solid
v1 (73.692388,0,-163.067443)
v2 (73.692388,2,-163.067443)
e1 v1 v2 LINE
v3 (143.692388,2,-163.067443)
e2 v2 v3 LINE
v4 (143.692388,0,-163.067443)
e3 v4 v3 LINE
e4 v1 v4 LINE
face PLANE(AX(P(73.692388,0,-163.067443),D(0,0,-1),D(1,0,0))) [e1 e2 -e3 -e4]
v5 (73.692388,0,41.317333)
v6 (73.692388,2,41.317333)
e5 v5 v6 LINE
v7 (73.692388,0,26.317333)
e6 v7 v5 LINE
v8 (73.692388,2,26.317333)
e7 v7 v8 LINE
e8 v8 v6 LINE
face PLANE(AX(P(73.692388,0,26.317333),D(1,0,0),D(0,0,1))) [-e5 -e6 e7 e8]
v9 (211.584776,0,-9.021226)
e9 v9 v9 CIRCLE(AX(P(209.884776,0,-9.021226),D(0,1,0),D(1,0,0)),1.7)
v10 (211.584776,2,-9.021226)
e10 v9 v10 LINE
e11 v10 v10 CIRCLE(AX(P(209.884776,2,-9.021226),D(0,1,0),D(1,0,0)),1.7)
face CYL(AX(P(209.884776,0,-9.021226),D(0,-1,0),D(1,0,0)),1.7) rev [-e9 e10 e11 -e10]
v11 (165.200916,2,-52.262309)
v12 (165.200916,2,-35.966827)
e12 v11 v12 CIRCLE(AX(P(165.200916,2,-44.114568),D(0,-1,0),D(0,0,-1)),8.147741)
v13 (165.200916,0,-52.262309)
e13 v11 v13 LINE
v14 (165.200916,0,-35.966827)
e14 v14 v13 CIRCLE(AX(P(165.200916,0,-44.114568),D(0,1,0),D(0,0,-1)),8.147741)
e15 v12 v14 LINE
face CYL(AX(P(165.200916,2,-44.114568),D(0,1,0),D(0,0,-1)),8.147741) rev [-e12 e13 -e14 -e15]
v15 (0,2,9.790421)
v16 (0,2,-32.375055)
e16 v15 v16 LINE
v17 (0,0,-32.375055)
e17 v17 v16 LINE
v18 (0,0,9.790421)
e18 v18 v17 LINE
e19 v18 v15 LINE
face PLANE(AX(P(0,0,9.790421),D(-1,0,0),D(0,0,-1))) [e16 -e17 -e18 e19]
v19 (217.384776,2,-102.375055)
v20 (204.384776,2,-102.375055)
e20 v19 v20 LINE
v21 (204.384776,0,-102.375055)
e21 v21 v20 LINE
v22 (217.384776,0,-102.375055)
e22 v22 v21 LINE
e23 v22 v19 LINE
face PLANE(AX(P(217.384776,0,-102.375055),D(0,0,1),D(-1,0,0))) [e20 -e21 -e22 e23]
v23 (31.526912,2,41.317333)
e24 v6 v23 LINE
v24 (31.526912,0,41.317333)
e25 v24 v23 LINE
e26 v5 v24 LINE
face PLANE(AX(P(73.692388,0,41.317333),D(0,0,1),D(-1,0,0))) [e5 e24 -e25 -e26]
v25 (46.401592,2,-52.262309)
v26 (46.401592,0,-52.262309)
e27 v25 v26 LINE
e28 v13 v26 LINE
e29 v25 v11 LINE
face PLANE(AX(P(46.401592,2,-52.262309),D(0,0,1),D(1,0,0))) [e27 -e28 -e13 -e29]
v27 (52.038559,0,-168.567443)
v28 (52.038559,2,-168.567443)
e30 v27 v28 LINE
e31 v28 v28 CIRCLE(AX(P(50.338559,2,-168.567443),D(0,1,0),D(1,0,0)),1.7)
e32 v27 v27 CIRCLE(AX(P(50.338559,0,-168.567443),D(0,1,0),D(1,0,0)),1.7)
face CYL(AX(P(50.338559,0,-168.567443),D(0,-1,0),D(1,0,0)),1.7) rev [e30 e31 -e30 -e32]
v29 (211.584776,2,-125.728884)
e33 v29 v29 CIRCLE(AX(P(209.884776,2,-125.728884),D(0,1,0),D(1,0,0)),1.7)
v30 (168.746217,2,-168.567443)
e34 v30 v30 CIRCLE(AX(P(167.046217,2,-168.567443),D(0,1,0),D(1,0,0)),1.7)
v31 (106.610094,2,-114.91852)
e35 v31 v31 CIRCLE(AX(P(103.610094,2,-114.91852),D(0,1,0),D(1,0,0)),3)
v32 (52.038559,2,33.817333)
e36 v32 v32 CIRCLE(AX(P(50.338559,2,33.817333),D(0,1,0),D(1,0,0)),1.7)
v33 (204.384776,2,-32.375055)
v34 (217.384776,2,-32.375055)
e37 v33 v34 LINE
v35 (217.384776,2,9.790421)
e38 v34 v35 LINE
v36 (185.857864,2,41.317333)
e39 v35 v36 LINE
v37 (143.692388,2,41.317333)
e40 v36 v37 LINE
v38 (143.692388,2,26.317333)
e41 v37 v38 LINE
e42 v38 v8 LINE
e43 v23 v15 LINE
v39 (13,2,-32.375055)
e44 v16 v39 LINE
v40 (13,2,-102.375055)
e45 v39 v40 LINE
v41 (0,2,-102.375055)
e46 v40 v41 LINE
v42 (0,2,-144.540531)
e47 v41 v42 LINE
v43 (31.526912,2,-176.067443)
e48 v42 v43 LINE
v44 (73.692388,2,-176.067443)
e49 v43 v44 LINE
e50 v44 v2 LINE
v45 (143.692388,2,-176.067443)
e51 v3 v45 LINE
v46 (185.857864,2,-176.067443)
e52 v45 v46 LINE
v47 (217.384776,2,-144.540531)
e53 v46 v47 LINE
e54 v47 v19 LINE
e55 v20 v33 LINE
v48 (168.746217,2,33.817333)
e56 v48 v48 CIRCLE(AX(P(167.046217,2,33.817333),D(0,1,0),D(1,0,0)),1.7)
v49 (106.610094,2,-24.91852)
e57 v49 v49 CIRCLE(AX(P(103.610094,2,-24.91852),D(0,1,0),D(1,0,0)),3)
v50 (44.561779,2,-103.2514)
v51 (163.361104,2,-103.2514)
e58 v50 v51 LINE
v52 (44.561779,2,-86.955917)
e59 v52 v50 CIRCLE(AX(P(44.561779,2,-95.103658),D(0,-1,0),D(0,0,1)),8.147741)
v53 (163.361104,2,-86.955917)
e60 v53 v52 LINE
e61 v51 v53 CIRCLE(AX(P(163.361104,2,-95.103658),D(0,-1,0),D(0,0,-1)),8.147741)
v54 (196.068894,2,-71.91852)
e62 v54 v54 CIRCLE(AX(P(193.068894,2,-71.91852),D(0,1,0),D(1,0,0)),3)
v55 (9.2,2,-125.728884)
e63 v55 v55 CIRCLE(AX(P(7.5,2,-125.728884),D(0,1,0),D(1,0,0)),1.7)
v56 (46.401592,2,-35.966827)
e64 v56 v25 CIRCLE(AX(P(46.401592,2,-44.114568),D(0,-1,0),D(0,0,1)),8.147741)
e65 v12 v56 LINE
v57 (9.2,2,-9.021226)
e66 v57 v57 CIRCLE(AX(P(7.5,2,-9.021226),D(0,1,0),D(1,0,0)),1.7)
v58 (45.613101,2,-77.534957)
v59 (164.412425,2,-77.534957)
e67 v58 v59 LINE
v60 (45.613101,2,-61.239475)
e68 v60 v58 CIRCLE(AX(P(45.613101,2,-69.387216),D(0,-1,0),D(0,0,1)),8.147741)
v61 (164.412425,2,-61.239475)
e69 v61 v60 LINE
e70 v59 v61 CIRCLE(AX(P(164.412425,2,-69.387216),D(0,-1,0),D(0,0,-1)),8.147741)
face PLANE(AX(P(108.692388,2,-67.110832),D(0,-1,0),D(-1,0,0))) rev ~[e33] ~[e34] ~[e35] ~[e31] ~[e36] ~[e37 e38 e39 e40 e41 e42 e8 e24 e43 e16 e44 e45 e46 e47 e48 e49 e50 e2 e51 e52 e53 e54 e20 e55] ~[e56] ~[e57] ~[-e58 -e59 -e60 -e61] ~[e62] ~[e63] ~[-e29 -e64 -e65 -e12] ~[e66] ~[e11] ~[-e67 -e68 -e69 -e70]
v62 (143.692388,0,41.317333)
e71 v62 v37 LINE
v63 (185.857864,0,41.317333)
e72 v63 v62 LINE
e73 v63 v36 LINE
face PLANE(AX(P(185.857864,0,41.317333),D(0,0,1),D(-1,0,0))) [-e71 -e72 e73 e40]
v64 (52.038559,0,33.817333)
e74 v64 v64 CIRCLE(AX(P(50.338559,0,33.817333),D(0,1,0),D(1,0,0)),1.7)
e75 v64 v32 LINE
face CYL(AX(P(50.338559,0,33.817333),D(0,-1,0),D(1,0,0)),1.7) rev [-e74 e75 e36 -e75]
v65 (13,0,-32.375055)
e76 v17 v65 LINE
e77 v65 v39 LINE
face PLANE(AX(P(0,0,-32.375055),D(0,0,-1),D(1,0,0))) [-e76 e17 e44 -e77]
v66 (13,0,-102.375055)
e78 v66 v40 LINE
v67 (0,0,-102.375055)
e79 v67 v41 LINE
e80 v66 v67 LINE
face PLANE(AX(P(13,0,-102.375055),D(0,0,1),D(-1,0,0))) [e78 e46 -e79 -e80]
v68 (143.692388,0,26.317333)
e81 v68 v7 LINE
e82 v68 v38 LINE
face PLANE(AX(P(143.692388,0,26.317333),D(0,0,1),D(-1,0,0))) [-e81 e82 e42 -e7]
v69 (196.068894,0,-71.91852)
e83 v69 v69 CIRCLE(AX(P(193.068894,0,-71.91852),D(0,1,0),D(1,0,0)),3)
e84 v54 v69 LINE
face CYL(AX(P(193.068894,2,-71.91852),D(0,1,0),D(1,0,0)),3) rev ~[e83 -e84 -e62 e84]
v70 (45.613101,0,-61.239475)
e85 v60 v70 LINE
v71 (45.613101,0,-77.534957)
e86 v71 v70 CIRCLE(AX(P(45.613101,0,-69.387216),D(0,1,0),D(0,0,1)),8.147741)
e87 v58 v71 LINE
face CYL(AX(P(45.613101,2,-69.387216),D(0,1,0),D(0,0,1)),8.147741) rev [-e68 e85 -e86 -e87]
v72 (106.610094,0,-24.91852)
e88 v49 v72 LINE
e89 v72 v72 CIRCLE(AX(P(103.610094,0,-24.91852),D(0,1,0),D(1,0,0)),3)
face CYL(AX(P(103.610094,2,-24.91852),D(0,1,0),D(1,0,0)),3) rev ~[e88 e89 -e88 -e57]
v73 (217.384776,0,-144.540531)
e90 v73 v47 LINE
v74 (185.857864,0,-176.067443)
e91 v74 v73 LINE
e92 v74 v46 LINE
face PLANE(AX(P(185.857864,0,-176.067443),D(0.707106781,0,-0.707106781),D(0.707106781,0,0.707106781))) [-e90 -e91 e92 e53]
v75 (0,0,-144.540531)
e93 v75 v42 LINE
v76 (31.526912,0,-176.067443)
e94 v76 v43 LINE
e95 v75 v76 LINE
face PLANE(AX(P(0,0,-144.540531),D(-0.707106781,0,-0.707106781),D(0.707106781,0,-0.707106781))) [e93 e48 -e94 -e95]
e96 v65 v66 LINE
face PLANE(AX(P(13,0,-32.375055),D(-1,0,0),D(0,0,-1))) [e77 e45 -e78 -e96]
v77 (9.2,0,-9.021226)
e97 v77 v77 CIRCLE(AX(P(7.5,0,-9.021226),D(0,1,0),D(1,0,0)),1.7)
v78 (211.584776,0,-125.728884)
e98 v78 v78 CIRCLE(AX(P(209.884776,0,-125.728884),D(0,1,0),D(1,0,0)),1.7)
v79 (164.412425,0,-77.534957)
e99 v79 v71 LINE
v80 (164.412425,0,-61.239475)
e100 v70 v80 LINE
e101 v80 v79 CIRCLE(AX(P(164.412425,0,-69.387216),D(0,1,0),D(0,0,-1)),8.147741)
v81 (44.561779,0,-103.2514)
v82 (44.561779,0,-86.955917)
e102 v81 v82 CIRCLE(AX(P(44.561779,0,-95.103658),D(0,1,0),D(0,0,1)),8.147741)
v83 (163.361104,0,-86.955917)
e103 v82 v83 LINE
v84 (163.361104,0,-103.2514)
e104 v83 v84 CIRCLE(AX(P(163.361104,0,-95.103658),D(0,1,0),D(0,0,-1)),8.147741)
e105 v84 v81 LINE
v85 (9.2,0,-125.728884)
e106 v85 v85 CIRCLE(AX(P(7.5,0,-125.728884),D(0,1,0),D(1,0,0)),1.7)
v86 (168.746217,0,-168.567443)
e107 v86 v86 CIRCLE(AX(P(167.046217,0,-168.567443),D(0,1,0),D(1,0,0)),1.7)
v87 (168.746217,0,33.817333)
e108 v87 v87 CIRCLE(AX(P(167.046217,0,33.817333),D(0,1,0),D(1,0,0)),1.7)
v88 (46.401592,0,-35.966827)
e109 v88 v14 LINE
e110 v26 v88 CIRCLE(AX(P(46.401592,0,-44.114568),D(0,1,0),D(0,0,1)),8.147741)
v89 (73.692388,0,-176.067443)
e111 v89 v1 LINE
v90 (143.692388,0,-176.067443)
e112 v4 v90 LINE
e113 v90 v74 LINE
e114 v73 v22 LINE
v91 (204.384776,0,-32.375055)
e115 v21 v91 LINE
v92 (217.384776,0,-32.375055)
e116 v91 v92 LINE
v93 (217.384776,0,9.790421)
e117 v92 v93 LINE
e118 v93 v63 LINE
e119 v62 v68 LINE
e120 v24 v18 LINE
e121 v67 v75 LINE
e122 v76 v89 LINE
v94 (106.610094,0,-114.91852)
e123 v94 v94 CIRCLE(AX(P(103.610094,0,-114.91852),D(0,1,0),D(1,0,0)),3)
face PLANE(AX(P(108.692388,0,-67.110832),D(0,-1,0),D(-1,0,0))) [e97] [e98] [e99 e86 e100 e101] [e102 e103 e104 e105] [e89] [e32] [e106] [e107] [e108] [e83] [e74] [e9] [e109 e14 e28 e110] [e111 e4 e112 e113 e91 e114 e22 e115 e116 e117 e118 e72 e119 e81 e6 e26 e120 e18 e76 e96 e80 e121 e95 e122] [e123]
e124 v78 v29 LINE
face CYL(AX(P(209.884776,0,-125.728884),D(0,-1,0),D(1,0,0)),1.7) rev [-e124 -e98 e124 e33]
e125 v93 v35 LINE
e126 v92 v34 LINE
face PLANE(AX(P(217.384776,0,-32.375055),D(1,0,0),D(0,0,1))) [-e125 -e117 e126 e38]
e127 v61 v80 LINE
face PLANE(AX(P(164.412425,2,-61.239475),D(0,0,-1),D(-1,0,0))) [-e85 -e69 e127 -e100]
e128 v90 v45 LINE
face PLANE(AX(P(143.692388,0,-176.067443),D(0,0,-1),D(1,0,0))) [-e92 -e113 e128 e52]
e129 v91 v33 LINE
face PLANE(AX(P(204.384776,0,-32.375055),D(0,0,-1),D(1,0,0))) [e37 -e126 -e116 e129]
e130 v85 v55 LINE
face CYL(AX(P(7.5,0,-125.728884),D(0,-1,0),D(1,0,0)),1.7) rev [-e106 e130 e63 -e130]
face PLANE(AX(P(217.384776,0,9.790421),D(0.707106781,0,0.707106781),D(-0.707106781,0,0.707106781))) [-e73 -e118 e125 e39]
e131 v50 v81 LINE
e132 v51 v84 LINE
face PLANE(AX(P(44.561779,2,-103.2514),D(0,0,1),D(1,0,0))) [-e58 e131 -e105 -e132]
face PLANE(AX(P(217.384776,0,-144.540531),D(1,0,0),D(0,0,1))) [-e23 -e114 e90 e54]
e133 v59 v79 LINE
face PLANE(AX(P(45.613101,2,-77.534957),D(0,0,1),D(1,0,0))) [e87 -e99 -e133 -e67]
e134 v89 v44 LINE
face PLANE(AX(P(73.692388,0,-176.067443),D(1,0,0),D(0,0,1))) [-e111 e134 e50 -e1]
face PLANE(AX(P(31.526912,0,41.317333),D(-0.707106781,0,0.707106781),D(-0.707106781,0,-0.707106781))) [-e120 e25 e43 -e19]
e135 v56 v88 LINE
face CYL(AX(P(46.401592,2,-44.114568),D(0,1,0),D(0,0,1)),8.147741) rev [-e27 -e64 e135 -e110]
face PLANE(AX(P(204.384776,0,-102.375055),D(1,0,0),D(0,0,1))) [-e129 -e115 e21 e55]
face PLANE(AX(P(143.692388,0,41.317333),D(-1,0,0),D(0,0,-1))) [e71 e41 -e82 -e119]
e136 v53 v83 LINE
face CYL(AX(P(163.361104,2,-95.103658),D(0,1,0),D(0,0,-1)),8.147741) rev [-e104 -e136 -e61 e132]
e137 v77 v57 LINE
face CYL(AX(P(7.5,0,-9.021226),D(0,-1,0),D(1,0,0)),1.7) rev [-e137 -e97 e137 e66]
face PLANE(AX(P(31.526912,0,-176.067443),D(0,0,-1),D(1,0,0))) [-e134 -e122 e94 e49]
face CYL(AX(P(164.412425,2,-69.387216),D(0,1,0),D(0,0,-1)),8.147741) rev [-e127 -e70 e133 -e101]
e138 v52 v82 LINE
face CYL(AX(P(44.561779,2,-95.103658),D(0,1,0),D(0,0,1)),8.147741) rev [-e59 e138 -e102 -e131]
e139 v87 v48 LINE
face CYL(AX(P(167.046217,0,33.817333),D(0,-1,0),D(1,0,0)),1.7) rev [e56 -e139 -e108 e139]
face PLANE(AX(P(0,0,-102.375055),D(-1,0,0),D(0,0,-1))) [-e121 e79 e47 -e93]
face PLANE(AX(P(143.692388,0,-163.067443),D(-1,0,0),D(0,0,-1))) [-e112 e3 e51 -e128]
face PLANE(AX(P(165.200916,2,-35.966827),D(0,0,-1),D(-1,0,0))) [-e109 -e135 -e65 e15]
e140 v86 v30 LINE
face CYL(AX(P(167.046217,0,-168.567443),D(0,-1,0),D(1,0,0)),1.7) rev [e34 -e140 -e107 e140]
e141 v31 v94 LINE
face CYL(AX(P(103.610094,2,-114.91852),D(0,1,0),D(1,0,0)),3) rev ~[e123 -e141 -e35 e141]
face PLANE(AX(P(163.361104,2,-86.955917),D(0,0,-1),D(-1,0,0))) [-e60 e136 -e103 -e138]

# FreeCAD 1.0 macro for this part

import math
import FreeCAD as App
import Part
import Sketcher

V = App.Vector
Q = App.Units.Quantity


def add_polygon(sketch, points):
    """Adds a closed chain of lines whose ends are joined by coincident constraints."""
    first, n = sketch.GeometryCount, len(points)
    for a, b in zip(points, points[1:] + points[:1]):
        sketch.addGeometry(Part.LineSegment(App.Vector(*a, 0), App.Vector(*b, 0)), False)
    for i in range(n):
        sketch.addConstraint(Sketcher.Constraint("Coincident", first + i, 2, first + (i + 1) % n, 1))

doc = App.newDocument("Part")
body = doc.addObject("PartDesign::Body", "Body")

# Sketch on XZ plane
sketch1 = body.newObject("Sketcher::SketchObject", "Sketch")
sketch1.AttachmentSupport = (doc.getObject("XZ_Plane"), [""])
sketch1.MapMode = "FlatFace"
add_polygon(sketch1, [(0, -32.4), (0, 9.8), (31.5, 41.3), (73.7, 41.3), (73.7, 26.3), (143.7, 26.3), (143.7, 41.3), (185.9, 41.3), (217.4, 9.8), (217.4, -32.4), (204.4, -32.4), (204.4, -102.4), (217.4, -102.4), (217.4, -144.5), (185.9, -176.1), (143.7, -176.1), (143.7, -163.1), (73.7, -163.1), (73.7, -176.1), (31.5, -176.1), (0, -144.5), (0, -102.4), (13, -102.4), (13, -32.4)])  # lines 0-23
sketch1.addGeometry(Part.Circle(V(167, 33.8, 0), V(0, 0, 1), 1.7), False)  # 24
sketch1.addGeometry(Part.Circle(V(209.9, -9, 0), V(0, 0, 1), 1.7), False)  # 25
sketch1.addGeometry(Part.Circle(V(50.3, 33.8, 0), V(0, 0, 1), 1.7), False)  # 26
sketch1.addGeometry(Part.Circle(V(7.5, -9, 0), V(0, 0, 1), 1.7), False)  # 27
sketch1.addGeometry(Part.Circle(V(209.9, -125.7, 0), V(0, 0, 1), 1.7), False)  # 28
sketch1.addGeometry(Part.Circle(V(167, -168.6, 0), V(0, 0, 1), 1.7), False)  # 29
sketch1.addGeometry(Part.Circle(V(7.5, -125.7, 0), V(0, 0, 1), 1.7), False)  # 30
sketch1.addGeometry(Part.Circle(V(50.3, -168.6, 0), V(0, 0, 1), 1.7), False)  # 31
sketch1.addConstraint(Sketcher.Constraint("Vertical", 0))
sketch1.addConstraint(Sketcher.Constraint("Horizontal", 2))
sketch1.addConstraint(Sketcher.Constraint("Vertical", 3))
sketch1.addConstraint(Sketcher.Constraint("Horizontal", 4))
sketch1.addConstraint(Sketcher.Constraint("Vertical", 5))
sketch1.addConstraint(Sketcher.Constraint("Horizontal", 6))
sketch1.addConstraint(Sketcher.Constraint("Vertical", 8))
sketch1.addConstraint(Sketcher.Constraint("Horizontal", 9))
sketch1.addConstraint(Sketcher.Constraint("Vertical", 10))
sketch1.addConstraint(Sketcher.Constraint("Horizontal", 11))
sketch1.addConstraint(Sketcher.Constraint("Vertical", 12))
sketch1.addConstraint(Sketcher.Constraint("Horizontal", 14))
sketch1.addConstraint(Sketcher.Constraint("Vertical", 15))
sketch1.addConstraint(Sketcher.Constraint("Horizontal", 16))
sketch1.addConstraint(Sketcher.Constraint("Vertical", 17))
sketch1.addConstraint(Sketcher.Constraint("Horizontal", 18))
sketch1.addConstraint(Sketcher.Constraint("Vertical", 20))
sketch1.addConstraint(Sketcher.Constraint("Horizontal", 21))
sketch1.addConstraint(Sketcher.Constraint("Vertical", 22))
sketch1.addConstraint(Sketcher.Constraint("Horizontal", 23))
sketch1.addConstraint(Sketcher.Constraint("Equal", 24, 25))
sketch1.addConstraint(Sketcher.Constraint("Equal", 25, 26))
sketch1.addConstraint(Sketcher.Constraint("Equal", 26, 27))
sketch1.addConstraint(Sketcher.Constraint("Equal", 27, 28))
sketch1.addConstraint(Sketcher.Constraint("Equal", 28, 29))
sketch1.addConstraint(Sketcher.Constraint("Equal", 29, 30))
sketch1.addConstraint(Sketcher.Constraint("Equal", 30, 31))
sketch1.addConstraint(Sketcher.Constraint("PointOnObject", 0, 2, -2))
sketch1.addConstraint(Sketcher.Constraint("PointOnObject", 19, 2, -2))
sketch1.addConstraint(Sketcher.Constraint("Perpendicular", 1, 7))
sketch1.addConstraint(Sketcher.Constraint("Perpendicular", 7, 13))
sketch1.addConstraint(Sketcher.Constraint("Perpendicular", 13, 19))
sketch1.addConstraint(Sketcher.Constraint("Horizontal", 24, 3, 26, 3))
sketch1.addConstraint(Sketcher.Constraint("Horizontal", 25, 3, 27, 3))
sketch1.addConstraint(Sketcher.Constraint("Horizontal", 28, 3, 30, 3))
sketch1.addConstraint(Sketcher.Constraint("Horizontal", 29, 3, 31, 3))
sketch1.addConstraint(Sketcher.Constraint("Horizontal", 2, 2, 5, 2))
sketch1.addConstraint(Sketcher.Constraint("Horizontal", 0, 2, 7, 2))
sketch1.addConstraint(Sketcher.Constraint("Horizontal", 14, 2, 17, 2))
sketch1.addConstraint(Sketcher.Constraint("Horizontal", 12, 2, 19, 2))
sketch1.addConstraint(Sketcher.Constraint("Horizontal", 11, 2, 20, 2))
sketch1.addConstraint(Sketcher.Constraint("Horizontal", 9, 2, 22, 2))
sketch1.addConstraint(Sketcher.Constraint("Vertical", 25, 3, 28, 3))
sketch1.addConstraint(Sketcher.Constraint("Vertical", 24, 3, 29, 3))
sketch1.addConstraint(Sketcher.Constraint("Vertical", 27, 3, 30, 3))
sketch1.addConstraint(Sketcher.Constraint("Vertical", 26, 3, 31, 3))
sketch1.addConstraint(Sketcher.Constraint("Vertical", 8, 2, 11, 2))
sketch1.addConstraint(Sketcher.Constraint("Vertical", 6, 2, 13, 2))
sketch1.addConstraint(Sketcher.Constraint("Vertical", 5, 2, 14, 2))
sketch1.addConstraint(Sketcher.Constraint("Vertical", 3, 2, 16, 2))
sketch1.addConstraint(Sketcher.Constraint("Vertical", 1, 2, 18, 2))
sketch1.addConstraint(Sketcher.Constraint("Equal", 2, 6))
sketch1.addConstraint(Sketcher.Constraint("Equal", 11, 21))
sketch1.addConstraint(Sketcher.Constraint("Equal", 18, 0))
sketch1.addConstraint(Sketcher.Constraint("Equal", 16, 10))
sketch1.addConstraint(Sketcher.Constraint("Equal", 8, 12))
sketch1.addConstraint(Sketcher.Constraint("Equal", 23, 15))
sketch1.addConstraint(Sketcher.Constraint("Diameter", 24, Q("3.4 mm")))
sketch1.addConstraint(Sketcher.Constraint("DistanceX", 4, 1, 4, 2, Q("70 mm")))
sketch1.addConstraint(Sketcher.Constraint("DistanceX", 9, 2, 9, 1, Q("13 mm")))
sketch1.addConstraint(Sketcher.Constraint("DistanceY", 3, 2, 3, 1, Q("15 mm")))
sketch1.addConstraint(Sketcher.Constraint("DistanceX", -1, 1, 27, 3, Q("7.5 mm")))
sketch1.addConstraint(Sketcher.Constraint("DistanceY", 26, 3, 1, 2, Q("7.5 mm")))
sketch1.addConstraint(Sketcher.Constraint("DistanceX", 25, 3, 7, 2, Q("7.5 mm")))
sketch1.addConstraint(Sketcher.Constraint("DistanceY", 13, 2, 29, 3, Q("7.5 mm")))
sketch1.addConstraint(Sketcher.Constraint("DistanceX", 2, 1, 2, 2, Q("42.165476 mm")))
sketch1.addConstraint(Sketcher.Constraint("DistanceX", -1, 1, 26, 3, Q("50.338559 mm")))
sketch1.addConstraint(Sketcher.Constraint("DistanceY", -1, 1, 0, 2, Q("9.790421 mm")))
sketch1.addConstraint(Sketcher.Constraint("DistanceX", -1, 1, 1, 2, Q("31.526912 mm")))
sketch1.addConstraint(Sketcher.Constraint("DistanceX", 24, 3, 25, 3, Q("42.838559 mm")))
sketch1.addConstraint(Sketcher.Constraint("DistanceY", 25, 3, 24, 3, Q("42.838559 mm")))
sketch1.addConstraint(Sketcher.Constraint("DistanceY", 28, 3, 25, 3, Q("116.707658 mm")))
pad1 = body.newObject("PartDesign::Pad", "Pad")
pad1.Profile = sketch1
pad1.Length = 2
pad1.Reversed = True

# Sketch on XZ plane
sketch2 = body.newObject("Sketcher::SketchObject", "Sketch001")
sketch2.AttachmentSupport = (doc.getObject("XZ_Plane"), [""])
sketch2.MapMode = "FlatFace"
sketch2.AttachmentOffset = App.Placement(V(0, 0, -2), App.Rotation())
sketch2.addGeometry(Part.Circle(V(103.6, -114.9, 0), V(0, 0, 1), 3), False)
sketch2.addGeometry(Part.Circle(V(103.6, -24.9, 0), V(0, 0, 1), 3), False)
sketch2.addGeometry(Part.Circle(V(193.1, -71.9, 0), V(0, 0, 1), 3), False)
sketch2.addConstraint(Sketcher.Constraint("Equal", 0, 1))
sketch2.addConstraint(Sketcher.Constraint("Equal", 1, 2))
sketch2.addConstraint(Sketcher.Constraint("Vertical", 0, 3, 1, 3))
sketch2.addConstraint(Sketcher.Constraint("Diameter", 0, Q("6 mm")))
sketch2.addConstraint(Sketcher.Constraint("DistanceY", 0, 3, 1, 3, Q("90 mm")))
sketch2.addConstraint(Sketcher.Constraint("DistanceY", 0, 3, 2, 3, Q("43 mm")))
sketch2.addConstraint(Sketcher.Constraint("DistanceX", 0, 3, 2, 3, Q("89.4588 mm")))
sketch2.addConstraint(Sketcher.Constraint("DistanceY", 0, 3, -1, 1, Q("114.91852 mm")))
sketch2.addConstraint(Sketcher.Constraint("DistanceX", -1, 1, 0, 3, Q("103.610094 mm")))
pocket1 = body.newObject("PartDesign::Pocket", "Pocket")
pocket1.Profile = sketch2
pocket1.Length = 10
pocket1.Reversed = True

# Sketch on XZ plane
sketch3 = body.newObject("Sketcher::SketchObject", "Sketch002")
sketch3.AttachmentSupport = (doc.getObject("XZ_Plane"), [""])
sketch3.MapMode = "FlatFace"
sketch3.AttachmentOffset = App.Placement(V(0, 0, -2), App.Rotation())
sketch3.addGeometry(Part.LineSegment(V(163, -103, 0), V(45, -103, 0)), False)
sketch3.addGeometry(Part.ArcOfCircle(Part.Circle(V(45, -95, 0), V(0, 0, 1), 8), math.radians(90), math.radians(270)), False)
sketch3.addGeometry(Part.LineSegment(V(45, -87, 0), V(163, -87, 0)), False)
sketch3.addGeometry(Part.ArcOfCircle(Part.Circle(V(163, -95, 0), V(0, 0, 1), 8), math.radians(-90), math.radians(90)), False)
sketch3.addGeometry(Part.LineSegment(V(164, -78, 0), V(46, -78, 0)), False)
sketch3.addGeometry(Part.ArcOfCircle(Part.Circle(V(46, -69, 0), V(0, 0, 1), 8), math.radians(90), math.radians(270)), False)
sketch3.addGeometry(Part.LineSegment(V(46, -61, 0), V(164, -61, 0)), False)
sketch3.addGeometry(Part.ArcOfCircle(Part.Circle(V(164, -69, 0), V(0, 0, 1), 8), math.radians(-90), math.radians(90)), False)
sketch3.addGeometry(Part.LineSegment(V(165, -52, 0), V(46, -52, 0)), False)
sketch3.addGeometry(Part.ArcOfCircle(Part.Circle(V(46, -44, 0), V(0, 0, 1), 8), math.radians(90), math.radians(270)), False)
sketch3.addGeometry(Part.LineSegment(V(46, -36, 0), V(165, -36, 0)), False)
sketch3.addGeometry(Part.ArcOfCircle(Part.Circle(V(165, -44, 0), V(0, 0, 1), 8), math.radians(-90), math.radians(90)), False)
sketch3.addConstraint(Sketcher.Constraint("Tangent", 0, 2, 1, 2))
sketch3.addConstraint(Sketcher.Constraint("Tangent", 1, 1, 2, 1))
sketch3.addConstraint(Sketcher.Constraint("Tangent", 2, 2, 3, 2))
sketch3.addConstraint(Sketcher.Constraint("Tangent", 3, 1, 0, 1))
sketch3.addConstraint(Sketcher.Constraint("Tangent", 4, 2, 5, 2))
sketch3.addConstraint(Sketcher.Constraint("Tangent", 5, 1, 6, 1))
sketch3.addConstraint(Sketcher.Constraint("Tangent", 6, 2, 7, 2))
sketch3.addConstraint(Sketcher.Constraint("Tangent", 7, 1, 4, 1))
sketch3.addConstraint(Sketcher.Constraint("Tangent", 8, 2, 9, 2))
sketch3.addConstraint(Sketcher.Constraint("Tangent", 9, 1, 10, 1))
sketch3.addConstraint(Sketcher.Constraint("Tangent", 10, 2, 11, 2))
sketch3.addConstraint(Sketcher.Constraint("Tangent", 11, 1, 8, 1))
sketch3.addConstraint(Sketcher.Constraint("Horizontal", 0))
sketch3.addConstraint(Sketcher.Constraint("Horizontal", 2))
sketch3.addConstraint(Sketcher.Constraint("Horizontal", 4))
sketch3.addConstraint(Sketcher.Constraint("Horizontal", 6))
sketch3.addConstraint(Sketcher.Constraint("Horizontal", 8))
sketch3.addConstraint(Sketcher.Constraint("Horizontal", 10))
sketch3.addConstraint(Sketcher.Constraint("Equal", 3, 5))
sketch3.addConstraint(Sketcher.Constraint("Equal", 7, 9))
sketch3.addConstraint(Sketcher.Constraint("Equal", 2, 4))
sketch3.addConstraint(Sketcher.Constraint("Equal", 6, 8))
sketch3.addConstraint(Sketcher.Constraint("Radius", 1, Q("8.147741 mm")))
sketch3.addConstraint(Sketcher.Constraint("DistanceX", -1, 1, 5, 3, Q("45.613101 mm")))
sketch3.addConstraint(Sketcher.Constraint("DistanceY", 0, 2, -1, 1, Q("103.2514 mm")))
sketch3.addConstraint(Sketcher.Constraint("DistanceY", 1, 1, 5, 3, Q("17.568701 mm")))
sketch3.addConstraint(Sketcher.Constraint("DistanceX", 0, 2, 0, 1, Q("118.799324 mm")))
sketch3.addConstraint(Sketcher.Constraint("DistanceX", -1, 1, 1, 3, Q("44.561779 mm")))
sketch3.addConstraint(Sketcher.Constraint("DistanceX", -1, 1, 9, 3, Q("46.401592 mm")))
sketch3.addConstraint(Sketcher.Constraint("DistanceY", 8, 2, -1, 1, Q("52.262309 mm")))
pocket2 = body.newObject("PartDesign::Pocket", "Pocket001")
pocket2.Profile = sketch3
pocket2.Length = 10
pocket2.Reversed = True

doc.recompute()
